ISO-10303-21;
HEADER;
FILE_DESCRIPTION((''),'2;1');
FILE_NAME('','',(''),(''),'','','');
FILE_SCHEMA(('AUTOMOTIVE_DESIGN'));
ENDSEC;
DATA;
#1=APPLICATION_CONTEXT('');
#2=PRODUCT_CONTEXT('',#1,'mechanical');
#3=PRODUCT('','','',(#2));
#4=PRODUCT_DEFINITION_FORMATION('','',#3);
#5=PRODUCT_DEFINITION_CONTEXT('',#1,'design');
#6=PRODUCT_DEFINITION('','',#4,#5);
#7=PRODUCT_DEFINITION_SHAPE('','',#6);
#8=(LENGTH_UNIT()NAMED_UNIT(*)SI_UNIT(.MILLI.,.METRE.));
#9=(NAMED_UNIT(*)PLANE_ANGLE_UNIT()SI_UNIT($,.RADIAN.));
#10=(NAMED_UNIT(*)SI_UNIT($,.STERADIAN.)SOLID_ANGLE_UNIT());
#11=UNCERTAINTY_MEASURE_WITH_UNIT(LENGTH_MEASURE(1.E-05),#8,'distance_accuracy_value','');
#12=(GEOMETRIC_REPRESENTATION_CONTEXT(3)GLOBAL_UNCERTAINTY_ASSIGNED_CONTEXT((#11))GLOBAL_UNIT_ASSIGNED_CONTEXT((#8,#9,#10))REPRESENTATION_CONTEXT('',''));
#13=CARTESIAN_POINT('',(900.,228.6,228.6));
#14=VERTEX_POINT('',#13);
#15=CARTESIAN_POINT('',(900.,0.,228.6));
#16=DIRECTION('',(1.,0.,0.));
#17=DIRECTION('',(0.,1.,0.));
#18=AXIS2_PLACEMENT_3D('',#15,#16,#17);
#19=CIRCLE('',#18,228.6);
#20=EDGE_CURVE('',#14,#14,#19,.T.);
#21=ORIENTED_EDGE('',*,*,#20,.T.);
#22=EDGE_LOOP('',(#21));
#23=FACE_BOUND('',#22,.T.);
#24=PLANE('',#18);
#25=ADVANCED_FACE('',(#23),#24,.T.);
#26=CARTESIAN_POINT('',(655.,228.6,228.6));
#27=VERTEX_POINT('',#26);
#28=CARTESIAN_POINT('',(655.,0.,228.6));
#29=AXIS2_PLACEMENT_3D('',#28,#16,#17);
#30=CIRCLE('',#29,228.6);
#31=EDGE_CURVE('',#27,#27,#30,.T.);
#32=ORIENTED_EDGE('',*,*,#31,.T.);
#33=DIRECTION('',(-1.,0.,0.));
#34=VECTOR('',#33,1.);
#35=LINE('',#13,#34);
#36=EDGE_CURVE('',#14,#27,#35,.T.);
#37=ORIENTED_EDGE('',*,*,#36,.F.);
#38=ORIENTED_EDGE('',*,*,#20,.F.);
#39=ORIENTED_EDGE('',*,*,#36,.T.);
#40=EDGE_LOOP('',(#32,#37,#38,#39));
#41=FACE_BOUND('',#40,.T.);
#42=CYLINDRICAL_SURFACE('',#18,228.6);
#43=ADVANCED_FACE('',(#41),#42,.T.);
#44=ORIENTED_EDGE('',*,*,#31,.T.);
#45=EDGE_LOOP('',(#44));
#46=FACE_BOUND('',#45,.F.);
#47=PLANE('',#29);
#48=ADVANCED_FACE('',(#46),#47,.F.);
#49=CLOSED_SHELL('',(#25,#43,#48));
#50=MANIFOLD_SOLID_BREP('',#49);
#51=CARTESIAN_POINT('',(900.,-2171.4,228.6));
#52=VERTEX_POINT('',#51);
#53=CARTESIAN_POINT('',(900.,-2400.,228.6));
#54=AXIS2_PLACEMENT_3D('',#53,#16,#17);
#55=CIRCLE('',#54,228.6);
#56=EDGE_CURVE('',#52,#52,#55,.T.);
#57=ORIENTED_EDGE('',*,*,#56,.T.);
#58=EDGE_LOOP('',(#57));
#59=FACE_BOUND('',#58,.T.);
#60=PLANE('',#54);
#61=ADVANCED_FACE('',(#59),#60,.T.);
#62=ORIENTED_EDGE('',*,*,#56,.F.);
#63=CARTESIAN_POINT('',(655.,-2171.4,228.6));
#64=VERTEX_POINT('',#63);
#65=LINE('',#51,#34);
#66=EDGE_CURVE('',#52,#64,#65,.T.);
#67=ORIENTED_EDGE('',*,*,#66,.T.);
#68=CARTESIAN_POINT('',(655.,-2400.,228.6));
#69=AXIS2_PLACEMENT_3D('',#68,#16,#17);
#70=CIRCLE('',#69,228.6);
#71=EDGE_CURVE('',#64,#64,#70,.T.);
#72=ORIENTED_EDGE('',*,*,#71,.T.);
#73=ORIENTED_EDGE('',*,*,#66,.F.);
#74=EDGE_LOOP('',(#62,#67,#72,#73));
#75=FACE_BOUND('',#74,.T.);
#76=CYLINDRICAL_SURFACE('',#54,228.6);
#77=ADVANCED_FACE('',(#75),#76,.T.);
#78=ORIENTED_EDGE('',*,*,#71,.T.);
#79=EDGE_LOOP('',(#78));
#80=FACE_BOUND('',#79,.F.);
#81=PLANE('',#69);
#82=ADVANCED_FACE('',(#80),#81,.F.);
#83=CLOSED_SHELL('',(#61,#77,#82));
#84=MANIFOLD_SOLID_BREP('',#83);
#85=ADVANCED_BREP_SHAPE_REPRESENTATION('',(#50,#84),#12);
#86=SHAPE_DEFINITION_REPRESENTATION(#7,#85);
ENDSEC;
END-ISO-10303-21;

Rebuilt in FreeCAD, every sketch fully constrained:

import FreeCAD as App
import Part
import Sketcher

doc = App.newDocument("Part")
body = doc.addObject("PartDesign::Body", "Body")

# Sketch on YZ plane
sketch1 = doc.addObject("Sketcher::SketchObject", "Sketch")
body.addObject(sketch1)
sketch1.AttachmentSupport = (doc.YZ_Plane, [""])
sketch1.MapMode = "FlatFace"
sketch1.AttachmentOffset = App.Placement(App.Vector(0, 0, 900), App.Rotation())
sketch1.addGeometry(Part.Circle(App.Vector(-2400, 229, 0), App.Vector(0, 0, 1), 229), False)
sketch1.addConstraint([
    Sketcher.Constraint("Diameter", 0, 457.2),
    Sketcher.Constraint("DistanceX", 0, 3, -1, 1, 2400.0),
    Sketcher.Constraint("DistanceY", -1, 1, 0, 3, 228.6),
])
pad1 = doc.addObject("PartDesign::Pad", "Pad")
body.addObject(pad1)
pad1.Profile = sketch1
pad1.Length = 245
pad1.Reversed = True
body2 = doc.addObject("PartDesign::Body", "Body001")

# Sketch on YZ plane
sketch2 = doc.addObject("Sketcher::SketchObject", "Sketch001")
body2.addObject(sketch2)
sketch2.AttachmentSupport = (doc.getObject("YZ_Plane001"), [""])
sketch2.MapMode = "FlatFace"
sketch2.AttachmentOffset = App.Placement(App.Vector(0, 0, 900), App.Rotation())
sketch2.addGeometry(Part.Circle(App.Vector(0, 229, 0), App.Vector(0, 0, 1), 229), False)
sketch2.addConstraint([
    Sketcher.Constraint("PointOnObject", 0, 3, -2),
    Sketcher.Constraint("Diameter", 0, 457.2),
    Sketcher.Constraint("DistanceY", -1, 1, 0, 3, 228.6),
])
pad2 = doc.addObject("PartDesign::Pad", "Pad001")
body2.addObject(pad2)
pad2.Profile = sketch2
pad2.Length = 245
pad2.Reversed = True

doc.recompute()
